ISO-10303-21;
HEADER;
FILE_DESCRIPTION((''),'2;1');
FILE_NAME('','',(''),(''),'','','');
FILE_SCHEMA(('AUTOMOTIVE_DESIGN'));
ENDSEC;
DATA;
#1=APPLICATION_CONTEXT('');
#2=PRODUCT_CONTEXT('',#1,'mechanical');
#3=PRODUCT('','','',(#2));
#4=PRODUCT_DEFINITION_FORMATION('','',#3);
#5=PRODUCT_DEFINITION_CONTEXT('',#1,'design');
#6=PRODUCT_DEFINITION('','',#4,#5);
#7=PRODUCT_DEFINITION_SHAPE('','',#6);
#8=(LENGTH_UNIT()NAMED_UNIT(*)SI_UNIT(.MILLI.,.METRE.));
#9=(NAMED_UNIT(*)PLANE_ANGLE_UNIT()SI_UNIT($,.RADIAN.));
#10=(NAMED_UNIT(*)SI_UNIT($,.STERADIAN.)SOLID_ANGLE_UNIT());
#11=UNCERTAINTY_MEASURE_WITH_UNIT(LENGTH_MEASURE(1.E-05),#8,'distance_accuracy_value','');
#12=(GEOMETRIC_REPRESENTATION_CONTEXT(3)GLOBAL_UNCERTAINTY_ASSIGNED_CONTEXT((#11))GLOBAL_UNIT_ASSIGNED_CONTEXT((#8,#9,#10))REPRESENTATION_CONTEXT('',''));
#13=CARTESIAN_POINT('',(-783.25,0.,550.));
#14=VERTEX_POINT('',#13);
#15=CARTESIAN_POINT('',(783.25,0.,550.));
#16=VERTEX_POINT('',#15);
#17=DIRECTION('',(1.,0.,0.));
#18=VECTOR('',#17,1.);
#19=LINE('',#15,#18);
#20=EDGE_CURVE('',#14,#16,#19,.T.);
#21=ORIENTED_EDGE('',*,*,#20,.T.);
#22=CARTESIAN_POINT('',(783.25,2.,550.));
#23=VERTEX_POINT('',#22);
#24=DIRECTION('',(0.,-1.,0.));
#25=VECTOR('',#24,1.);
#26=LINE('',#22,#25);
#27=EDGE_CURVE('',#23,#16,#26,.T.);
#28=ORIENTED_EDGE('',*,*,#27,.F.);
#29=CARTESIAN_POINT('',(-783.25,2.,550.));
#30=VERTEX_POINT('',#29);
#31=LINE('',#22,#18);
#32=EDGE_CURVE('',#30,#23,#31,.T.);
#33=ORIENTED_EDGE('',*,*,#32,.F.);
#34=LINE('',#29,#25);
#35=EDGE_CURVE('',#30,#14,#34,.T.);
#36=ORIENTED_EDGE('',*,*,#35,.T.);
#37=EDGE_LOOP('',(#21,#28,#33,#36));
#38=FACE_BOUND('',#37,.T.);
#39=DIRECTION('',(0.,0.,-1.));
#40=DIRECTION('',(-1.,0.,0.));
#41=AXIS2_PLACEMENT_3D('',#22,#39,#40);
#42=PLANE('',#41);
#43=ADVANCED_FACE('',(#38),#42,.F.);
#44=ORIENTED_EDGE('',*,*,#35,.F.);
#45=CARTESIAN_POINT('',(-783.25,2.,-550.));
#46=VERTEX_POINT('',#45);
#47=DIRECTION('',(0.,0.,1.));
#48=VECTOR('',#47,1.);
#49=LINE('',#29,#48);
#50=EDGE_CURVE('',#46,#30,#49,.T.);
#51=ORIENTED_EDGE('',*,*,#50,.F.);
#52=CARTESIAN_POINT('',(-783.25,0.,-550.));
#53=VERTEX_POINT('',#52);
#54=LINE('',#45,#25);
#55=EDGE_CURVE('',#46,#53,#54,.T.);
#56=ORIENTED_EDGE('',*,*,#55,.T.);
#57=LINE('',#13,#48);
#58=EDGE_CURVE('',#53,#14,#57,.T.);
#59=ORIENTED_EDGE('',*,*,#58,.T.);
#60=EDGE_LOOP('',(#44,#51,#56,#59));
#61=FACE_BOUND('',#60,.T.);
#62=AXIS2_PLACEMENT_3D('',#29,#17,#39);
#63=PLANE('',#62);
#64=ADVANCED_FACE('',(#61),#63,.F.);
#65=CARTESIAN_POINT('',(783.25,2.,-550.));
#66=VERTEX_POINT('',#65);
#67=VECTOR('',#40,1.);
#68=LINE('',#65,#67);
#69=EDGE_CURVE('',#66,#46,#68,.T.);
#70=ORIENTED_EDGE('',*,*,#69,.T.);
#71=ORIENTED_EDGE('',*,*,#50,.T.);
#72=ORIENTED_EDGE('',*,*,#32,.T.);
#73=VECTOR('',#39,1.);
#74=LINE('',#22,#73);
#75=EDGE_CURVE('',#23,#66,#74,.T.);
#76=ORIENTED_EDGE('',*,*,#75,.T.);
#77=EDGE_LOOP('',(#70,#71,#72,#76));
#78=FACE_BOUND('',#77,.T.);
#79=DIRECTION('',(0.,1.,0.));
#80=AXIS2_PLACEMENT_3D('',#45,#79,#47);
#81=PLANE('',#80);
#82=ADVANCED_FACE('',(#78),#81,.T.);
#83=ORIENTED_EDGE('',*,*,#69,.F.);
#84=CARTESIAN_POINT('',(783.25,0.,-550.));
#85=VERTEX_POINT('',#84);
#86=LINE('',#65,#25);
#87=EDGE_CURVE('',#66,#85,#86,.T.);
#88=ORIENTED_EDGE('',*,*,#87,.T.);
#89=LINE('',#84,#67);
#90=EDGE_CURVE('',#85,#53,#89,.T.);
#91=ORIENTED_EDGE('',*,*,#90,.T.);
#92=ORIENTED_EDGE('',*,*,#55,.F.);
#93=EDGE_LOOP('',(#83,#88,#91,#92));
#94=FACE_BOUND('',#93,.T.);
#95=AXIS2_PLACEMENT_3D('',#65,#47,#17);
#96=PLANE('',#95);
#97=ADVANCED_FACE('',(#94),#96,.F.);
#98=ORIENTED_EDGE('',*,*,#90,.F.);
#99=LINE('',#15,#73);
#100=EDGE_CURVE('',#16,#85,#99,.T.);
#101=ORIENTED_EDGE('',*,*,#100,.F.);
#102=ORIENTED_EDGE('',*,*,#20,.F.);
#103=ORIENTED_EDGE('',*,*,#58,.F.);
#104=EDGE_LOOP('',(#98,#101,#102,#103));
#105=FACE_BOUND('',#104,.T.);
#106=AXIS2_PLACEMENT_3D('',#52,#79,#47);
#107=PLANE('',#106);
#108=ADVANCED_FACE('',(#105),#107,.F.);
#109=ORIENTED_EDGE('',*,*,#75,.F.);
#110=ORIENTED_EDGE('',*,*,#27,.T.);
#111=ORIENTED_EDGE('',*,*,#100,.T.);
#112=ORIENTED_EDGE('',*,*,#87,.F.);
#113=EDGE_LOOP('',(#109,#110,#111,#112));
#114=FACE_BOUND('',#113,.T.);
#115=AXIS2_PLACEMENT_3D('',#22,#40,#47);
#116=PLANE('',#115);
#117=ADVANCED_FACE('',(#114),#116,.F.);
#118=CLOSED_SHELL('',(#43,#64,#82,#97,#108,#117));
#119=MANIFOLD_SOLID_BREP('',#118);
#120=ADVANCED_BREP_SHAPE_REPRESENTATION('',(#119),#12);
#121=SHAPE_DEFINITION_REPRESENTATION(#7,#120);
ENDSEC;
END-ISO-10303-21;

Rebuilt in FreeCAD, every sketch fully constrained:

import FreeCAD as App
import Part
import Sketcher
Q = App.Units.Quantity


def add_polygon(sketch, points):
    """Adds a closed chain of lines whose ends are joined by coincident constraints."""
    first, n = sketch.GeometryCount, len(points)
    for a, b in zip(points, points[1:] + points[:1]):
        sketch.addGeometry(Part.LineSegment(App.Vector(*a, 0), App.Vector(*b, 0)), False)
    for i in range(n):
        sketch.addConstraint(Sketcher.Constraint("Coincident", first + i, 2, first + (i + 1) % n, 1))

doc = App.newDocument("Part")
body = doc.addObject("PartDesign::Body", "Body")

# Sketch on XZ plane
sketch1 = body.newObject("Sketcher::SketchObject", "Sketch")
sketch1.AttachmentSupport = (doc.getObject("XZ_Plane"), [""])
sketch1.MapMode = "FlatFace"
add_polygon(sketch1, [(-783.25, -550), (-783.25, 550), (783.25, 550), (783.25, -550)])  # lines 0-3
sketch1.addConstraint([
    Sketcher.Constraint("Vertical", 0),
    Sketcher.Constraint("Horizontal", 1),
    Sketcher.Constraint("Vertical", 2),
    Sketcher.Constraint("Horizontal", 3),
    Sketcher.Constraint("Symmetric", 0, 2, 2, 2, -1, 1),
    Sketcher.Constraint("DistanceY", 0, 1, 0, 2, Q("1100 mm")),
    Sketcher.Constraint("DistanceX", 1, 1, 1, 2, Q("1566.5 mm")),
])
pad1 = body.newObject("PartDesign::Pad", "Pad")
pad1.Profile = sketch1
pad1.Length = 2
pad1.Reversed = True

doc.recompute()
